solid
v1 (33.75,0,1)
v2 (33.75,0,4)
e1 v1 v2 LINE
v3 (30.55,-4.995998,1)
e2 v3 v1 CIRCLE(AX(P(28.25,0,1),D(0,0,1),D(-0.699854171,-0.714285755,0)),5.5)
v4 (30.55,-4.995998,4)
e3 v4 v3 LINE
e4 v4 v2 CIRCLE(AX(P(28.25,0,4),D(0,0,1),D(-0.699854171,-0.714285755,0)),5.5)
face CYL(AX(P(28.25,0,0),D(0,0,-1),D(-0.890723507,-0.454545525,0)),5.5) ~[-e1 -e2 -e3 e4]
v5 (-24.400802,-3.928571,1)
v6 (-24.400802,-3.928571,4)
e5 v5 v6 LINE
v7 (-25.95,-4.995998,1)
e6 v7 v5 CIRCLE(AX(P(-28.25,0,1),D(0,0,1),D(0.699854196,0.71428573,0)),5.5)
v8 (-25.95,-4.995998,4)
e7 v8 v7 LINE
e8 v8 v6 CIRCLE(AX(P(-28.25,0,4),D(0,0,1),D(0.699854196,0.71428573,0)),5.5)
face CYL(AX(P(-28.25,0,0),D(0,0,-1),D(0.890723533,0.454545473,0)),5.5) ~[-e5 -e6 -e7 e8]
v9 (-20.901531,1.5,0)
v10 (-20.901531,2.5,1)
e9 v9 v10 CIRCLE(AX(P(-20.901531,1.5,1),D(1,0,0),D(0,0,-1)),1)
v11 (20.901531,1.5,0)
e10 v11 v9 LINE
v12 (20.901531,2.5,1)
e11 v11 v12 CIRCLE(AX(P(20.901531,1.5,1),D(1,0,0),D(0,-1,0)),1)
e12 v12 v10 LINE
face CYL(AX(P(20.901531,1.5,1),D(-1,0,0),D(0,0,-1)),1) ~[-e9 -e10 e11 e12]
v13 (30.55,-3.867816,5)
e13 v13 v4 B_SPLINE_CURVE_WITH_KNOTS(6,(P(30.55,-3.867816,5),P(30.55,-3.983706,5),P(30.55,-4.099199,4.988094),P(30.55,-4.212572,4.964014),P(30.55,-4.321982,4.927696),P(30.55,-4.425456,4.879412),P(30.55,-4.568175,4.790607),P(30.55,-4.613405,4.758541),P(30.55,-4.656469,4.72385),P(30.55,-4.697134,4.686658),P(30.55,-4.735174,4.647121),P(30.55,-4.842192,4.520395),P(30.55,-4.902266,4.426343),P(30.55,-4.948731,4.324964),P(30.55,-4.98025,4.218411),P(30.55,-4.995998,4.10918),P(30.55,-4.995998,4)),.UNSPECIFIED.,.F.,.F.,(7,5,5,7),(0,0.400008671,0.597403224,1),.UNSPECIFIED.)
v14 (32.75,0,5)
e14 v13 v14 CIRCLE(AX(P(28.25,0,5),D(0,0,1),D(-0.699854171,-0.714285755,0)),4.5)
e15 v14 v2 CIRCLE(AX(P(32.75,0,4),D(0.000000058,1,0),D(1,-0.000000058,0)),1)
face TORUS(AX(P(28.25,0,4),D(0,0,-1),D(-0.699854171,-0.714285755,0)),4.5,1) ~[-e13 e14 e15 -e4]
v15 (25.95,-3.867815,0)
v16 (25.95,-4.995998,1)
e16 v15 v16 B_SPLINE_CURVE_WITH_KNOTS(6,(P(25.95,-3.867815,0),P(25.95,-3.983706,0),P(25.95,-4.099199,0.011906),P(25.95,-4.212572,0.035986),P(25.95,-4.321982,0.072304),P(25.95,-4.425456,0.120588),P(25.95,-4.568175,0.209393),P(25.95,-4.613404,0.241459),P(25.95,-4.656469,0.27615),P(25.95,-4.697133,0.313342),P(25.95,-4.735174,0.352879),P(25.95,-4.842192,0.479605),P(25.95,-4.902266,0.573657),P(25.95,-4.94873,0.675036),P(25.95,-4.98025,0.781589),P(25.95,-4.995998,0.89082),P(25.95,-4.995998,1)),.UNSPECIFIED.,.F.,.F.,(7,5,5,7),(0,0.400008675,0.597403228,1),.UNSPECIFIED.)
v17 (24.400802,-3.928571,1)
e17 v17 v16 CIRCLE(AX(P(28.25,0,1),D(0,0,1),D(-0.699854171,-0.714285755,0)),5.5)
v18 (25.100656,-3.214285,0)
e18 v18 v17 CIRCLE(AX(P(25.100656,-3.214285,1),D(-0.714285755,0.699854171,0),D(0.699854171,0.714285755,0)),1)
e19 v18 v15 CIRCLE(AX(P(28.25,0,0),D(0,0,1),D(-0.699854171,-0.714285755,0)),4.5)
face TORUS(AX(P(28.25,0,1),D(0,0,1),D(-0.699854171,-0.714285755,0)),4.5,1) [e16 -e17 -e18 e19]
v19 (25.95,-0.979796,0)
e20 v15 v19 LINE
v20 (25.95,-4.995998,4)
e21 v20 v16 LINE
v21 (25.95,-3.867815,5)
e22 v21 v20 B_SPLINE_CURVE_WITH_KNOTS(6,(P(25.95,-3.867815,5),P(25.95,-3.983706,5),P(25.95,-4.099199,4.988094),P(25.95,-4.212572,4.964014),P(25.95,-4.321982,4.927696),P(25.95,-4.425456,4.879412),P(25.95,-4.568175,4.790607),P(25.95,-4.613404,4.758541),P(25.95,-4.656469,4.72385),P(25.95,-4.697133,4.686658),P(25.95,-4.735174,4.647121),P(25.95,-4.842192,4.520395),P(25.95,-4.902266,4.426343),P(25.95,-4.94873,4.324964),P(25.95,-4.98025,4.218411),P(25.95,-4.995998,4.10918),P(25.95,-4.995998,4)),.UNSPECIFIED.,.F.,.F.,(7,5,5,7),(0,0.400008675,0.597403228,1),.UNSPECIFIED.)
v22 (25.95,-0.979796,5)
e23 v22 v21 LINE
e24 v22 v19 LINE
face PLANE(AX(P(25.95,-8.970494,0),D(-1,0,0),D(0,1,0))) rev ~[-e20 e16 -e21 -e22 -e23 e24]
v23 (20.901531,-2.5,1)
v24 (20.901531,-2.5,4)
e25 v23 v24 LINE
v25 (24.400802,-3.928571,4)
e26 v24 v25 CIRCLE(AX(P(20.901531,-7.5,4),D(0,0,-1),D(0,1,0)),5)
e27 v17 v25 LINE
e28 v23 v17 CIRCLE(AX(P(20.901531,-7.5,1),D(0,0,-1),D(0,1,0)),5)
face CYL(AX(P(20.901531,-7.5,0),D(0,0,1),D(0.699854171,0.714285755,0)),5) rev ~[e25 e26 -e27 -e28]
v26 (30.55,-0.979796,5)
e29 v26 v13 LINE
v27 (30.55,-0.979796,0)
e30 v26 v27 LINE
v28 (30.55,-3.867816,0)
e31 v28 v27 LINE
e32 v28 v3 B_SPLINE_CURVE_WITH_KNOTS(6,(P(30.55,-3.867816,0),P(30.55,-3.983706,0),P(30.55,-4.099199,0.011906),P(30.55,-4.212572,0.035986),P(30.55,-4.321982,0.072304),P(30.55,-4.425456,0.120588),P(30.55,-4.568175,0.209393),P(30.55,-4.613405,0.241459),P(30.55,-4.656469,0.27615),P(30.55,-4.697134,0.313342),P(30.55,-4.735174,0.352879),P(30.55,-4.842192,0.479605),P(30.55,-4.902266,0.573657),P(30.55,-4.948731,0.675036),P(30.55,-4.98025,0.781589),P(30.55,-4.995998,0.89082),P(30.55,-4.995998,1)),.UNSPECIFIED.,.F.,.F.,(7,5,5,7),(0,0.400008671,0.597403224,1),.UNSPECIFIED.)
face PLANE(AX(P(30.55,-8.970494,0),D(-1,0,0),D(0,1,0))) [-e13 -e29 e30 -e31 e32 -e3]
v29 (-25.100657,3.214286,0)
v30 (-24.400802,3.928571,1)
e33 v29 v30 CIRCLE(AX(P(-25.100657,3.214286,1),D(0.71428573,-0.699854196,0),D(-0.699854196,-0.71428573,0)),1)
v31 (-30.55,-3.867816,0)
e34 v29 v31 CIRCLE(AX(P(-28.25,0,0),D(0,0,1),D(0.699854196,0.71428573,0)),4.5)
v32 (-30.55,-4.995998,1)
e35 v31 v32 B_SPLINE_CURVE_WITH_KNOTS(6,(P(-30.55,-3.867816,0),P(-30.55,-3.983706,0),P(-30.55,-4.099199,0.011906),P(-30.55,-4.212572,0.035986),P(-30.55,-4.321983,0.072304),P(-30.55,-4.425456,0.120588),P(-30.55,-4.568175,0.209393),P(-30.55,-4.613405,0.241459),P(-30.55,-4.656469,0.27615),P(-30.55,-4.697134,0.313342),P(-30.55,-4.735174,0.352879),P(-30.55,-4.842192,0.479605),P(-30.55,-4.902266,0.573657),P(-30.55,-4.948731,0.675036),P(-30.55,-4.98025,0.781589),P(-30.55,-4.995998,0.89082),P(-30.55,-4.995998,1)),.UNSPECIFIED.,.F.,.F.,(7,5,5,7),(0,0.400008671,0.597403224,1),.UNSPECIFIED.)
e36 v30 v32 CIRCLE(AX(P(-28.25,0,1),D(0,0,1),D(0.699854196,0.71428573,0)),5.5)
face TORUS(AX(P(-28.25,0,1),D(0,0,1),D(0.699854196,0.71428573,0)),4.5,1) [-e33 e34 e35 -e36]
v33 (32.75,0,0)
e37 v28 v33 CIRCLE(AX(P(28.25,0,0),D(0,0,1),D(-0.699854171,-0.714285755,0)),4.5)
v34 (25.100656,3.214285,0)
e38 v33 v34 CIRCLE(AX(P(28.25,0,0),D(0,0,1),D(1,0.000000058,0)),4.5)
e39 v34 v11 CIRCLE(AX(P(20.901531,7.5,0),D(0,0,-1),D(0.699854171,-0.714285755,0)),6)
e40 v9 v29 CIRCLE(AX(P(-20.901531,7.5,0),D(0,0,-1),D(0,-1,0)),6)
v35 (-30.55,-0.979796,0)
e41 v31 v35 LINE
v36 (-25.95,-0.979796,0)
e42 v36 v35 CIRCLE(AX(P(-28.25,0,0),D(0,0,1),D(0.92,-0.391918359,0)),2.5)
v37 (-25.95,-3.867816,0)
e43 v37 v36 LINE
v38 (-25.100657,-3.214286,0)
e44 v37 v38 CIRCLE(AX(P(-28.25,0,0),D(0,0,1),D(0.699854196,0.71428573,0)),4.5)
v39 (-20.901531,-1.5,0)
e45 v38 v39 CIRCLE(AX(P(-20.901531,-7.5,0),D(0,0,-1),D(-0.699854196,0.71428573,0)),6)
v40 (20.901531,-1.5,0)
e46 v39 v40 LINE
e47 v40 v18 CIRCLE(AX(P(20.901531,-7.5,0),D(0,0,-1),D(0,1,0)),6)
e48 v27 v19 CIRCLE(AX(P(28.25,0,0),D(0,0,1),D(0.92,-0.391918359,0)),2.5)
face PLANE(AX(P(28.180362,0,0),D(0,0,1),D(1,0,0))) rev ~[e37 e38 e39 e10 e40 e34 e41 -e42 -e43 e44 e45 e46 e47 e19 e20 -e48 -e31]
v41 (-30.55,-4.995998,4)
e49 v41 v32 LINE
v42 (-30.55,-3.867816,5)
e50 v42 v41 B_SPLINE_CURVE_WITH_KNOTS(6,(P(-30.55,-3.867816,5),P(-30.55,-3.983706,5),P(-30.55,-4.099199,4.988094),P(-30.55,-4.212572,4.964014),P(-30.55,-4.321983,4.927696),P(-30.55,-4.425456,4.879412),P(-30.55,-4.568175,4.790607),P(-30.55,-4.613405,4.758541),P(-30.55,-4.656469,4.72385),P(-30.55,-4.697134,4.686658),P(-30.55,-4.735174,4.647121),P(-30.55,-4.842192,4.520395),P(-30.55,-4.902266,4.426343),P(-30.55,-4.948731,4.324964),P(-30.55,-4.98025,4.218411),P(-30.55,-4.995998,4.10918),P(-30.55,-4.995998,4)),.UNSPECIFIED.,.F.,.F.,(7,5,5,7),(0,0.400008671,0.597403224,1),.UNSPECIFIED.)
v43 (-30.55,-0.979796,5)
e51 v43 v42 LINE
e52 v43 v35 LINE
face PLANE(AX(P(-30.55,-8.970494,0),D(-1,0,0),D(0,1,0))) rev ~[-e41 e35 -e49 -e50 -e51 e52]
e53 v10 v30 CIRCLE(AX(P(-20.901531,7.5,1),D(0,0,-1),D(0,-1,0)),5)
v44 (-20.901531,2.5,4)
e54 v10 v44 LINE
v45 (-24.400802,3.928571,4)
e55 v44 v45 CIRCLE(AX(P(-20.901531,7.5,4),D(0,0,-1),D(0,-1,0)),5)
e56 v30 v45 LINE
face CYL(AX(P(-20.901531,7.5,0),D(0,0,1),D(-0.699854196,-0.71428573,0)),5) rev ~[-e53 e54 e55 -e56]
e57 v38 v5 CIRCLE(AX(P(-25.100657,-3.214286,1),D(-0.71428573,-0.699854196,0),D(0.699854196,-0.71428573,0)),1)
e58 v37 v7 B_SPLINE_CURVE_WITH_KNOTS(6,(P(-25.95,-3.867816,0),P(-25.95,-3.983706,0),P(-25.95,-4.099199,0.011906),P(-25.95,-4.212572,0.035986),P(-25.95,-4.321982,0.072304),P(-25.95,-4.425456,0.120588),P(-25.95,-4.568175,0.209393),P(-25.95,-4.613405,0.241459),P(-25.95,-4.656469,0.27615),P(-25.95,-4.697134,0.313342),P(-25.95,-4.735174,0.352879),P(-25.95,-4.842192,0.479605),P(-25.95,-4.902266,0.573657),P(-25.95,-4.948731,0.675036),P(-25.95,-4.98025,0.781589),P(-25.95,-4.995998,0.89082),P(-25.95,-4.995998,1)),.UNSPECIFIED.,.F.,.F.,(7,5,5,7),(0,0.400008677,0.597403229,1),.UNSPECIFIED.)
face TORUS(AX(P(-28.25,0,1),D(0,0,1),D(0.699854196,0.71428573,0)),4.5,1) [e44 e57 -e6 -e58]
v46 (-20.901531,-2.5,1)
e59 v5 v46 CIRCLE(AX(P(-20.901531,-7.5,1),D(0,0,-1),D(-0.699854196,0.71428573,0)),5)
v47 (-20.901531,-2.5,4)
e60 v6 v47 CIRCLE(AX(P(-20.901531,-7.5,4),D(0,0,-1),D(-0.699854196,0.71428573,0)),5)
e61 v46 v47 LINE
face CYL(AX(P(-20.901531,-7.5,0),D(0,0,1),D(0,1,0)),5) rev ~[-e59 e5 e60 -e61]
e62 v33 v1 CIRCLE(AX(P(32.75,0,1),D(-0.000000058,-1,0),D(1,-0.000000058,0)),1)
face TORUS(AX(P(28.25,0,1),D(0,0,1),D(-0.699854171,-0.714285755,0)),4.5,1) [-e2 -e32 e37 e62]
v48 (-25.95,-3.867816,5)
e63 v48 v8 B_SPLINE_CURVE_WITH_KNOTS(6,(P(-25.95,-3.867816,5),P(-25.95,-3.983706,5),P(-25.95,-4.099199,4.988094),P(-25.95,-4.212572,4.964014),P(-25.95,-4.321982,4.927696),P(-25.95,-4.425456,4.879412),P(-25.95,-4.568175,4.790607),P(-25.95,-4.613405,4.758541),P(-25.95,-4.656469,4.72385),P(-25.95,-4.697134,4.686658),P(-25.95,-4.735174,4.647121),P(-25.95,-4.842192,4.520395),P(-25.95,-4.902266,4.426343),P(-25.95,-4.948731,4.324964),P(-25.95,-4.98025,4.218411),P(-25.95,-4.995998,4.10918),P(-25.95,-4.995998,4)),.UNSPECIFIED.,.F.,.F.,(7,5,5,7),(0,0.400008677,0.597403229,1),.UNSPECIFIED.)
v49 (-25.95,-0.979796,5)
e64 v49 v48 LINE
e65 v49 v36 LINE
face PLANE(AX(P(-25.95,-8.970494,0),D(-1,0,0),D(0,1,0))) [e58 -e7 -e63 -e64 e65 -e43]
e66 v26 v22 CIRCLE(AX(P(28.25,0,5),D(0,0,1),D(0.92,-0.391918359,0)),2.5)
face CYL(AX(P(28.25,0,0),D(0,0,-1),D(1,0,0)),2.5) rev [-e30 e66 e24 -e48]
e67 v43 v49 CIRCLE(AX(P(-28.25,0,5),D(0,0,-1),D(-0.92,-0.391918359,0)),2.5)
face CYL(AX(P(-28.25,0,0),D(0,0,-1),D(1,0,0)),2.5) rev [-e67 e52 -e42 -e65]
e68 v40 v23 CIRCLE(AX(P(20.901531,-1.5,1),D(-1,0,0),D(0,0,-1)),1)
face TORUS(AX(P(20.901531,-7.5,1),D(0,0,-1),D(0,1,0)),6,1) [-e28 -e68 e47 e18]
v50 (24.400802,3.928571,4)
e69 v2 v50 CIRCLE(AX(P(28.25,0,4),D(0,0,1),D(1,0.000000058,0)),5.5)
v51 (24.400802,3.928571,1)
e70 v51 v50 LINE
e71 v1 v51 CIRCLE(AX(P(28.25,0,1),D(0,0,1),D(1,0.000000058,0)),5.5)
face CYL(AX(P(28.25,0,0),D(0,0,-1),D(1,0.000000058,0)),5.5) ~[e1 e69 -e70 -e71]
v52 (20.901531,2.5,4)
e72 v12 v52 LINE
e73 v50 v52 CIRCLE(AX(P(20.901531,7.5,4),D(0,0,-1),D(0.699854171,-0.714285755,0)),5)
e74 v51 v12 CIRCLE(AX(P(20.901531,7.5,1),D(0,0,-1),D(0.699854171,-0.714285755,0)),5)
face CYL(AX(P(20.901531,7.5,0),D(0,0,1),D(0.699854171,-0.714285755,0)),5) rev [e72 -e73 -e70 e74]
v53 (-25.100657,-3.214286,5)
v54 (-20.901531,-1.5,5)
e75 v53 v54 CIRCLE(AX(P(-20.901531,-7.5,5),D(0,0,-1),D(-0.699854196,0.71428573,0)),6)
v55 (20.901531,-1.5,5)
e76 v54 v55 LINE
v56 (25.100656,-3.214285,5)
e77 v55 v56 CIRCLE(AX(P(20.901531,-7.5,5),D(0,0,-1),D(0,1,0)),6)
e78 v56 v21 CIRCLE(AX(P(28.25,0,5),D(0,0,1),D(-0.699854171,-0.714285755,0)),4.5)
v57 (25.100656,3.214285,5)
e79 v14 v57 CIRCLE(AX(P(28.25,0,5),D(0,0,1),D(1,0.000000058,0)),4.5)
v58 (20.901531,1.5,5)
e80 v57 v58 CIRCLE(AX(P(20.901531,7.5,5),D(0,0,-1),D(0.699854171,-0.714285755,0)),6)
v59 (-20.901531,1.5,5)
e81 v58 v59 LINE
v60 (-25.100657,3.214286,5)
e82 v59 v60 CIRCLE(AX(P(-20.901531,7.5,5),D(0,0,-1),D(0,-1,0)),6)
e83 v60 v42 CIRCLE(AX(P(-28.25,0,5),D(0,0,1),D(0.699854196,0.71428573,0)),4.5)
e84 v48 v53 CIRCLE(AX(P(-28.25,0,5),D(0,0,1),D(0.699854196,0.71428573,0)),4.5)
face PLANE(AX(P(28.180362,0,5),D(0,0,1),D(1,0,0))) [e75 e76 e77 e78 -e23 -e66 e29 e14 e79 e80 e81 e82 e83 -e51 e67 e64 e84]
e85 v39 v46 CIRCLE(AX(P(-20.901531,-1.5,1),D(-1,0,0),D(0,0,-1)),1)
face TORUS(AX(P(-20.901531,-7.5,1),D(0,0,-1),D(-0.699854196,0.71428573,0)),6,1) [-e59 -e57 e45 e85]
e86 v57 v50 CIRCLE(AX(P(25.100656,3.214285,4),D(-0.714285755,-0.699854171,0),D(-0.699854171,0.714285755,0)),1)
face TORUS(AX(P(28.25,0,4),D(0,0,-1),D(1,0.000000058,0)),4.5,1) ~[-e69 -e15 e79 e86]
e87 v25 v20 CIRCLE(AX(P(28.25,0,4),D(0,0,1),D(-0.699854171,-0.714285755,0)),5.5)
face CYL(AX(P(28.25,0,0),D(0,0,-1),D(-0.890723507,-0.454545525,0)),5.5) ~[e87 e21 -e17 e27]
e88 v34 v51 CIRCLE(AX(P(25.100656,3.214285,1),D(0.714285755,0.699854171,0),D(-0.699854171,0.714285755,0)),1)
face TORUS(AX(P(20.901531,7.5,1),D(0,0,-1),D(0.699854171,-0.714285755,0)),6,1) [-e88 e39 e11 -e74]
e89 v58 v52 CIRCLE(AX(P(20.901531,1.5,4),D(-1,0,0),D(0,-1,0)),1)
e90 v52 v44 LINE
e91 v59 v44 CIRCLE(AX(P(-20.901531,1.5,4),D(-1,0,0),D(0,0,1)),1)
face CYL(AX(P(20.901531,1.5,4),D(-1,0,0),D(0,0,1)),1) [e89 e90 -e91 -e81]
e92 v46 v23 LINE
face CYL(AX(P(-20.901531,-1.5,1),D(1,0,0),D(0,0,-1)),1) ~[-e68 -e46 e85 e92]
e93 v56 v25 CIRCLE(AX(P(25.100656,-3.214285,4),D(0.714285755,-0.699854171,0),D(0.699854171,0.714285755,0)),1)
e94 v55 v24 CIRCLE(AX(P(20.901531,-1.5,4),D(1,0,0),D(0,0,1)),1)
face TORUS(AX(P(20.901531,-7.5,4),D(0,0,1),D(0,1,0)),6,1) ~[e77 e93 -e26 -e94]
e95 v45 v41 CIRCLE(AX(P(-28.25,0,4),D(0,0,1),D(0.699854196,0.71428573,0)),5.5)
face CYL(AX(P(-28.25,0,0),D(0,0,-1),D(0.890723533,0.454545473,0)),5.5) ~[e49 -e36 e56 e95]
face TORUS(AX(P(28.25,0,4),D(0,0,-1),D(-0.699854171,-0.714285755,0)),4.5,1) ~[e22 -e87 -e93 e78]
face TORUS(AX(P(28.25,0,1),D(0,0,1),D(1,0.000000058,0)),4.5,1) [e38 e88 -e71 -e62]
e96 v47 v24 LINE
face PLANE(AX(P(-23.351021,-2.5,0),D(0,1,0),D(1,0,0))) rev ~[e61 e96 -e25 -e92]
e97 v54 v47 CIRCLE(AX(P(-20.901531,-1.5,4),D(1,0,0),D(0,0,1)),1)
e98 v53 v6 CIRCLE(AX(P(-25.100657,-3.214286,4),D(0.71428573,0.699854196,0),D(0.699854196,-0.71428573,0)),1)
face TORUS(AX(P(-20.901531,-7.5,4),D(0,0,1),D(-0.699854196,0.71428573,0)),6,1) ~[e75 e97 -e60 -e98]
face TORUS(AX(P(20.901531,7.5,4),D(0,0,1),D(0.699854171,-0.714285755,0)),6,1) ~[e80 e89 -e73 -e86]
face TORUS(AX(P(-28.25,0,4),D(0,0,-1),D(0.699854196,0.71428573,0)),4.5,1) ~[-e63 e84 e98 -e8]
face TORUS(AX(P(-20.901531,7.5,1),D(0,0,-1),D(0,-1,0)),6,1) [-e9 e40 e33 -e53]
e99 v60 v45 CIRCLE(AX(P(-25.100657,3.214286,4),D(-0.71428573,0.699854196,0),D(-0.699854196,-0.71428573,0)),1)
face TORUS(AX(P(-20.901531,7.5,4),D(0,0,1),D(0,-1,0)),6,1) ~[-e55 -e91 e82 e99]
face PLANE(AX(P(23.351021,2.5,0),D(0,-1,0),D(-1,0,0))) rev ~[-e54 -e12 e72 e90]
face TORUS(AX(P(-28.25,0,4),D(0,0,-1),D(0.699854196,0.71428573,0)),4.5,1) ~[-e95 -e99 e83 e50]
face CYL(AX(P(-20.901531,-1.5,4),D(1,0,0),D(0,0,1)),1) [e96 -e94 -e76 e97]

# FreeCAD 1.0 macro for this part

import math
import FreeCAD as App
import Part
import Sketcher
from FreeCAD import Vector


def edges_at(feature, points):
    """Names of the edges that pass closest to the given points."""
    edges = feature.Shape.Edges
    near = lambda p: min(range(len(edges)), key=lambda i: edges[i].distToShape(Part.Vertex(*p))[0])
    return sorted({f"Edge{near(p) + 1}" for p in points})


def add_polygon(sketch, points):
    """Adds a closed chain of lines whose ends are joined by coincident constraints."""
    first, n = sketch.GeometryCount, len(points)
    for a, b in zip(points, points[1:] + points[:1]):
        sketch.addGeometry(Part.LineSegment(App.Vector(*a, 0), App.Vector(*b, 0)), False)
    for i in range(n):
        sketch.addConstraint(Sketcher.Constraint("Coincident", first + i, 2, first + (i + 1) % n, 1))

doc = App.newDocument("Part")
params = doc.addObject("Spreadsheet::Sheet", "Params")
for row, (alias, value) in enumerate([
    ("sketch1_diameter", "5 mm"),
    ("sketch1_radius", "5.5 mm"),
    ("pad1_length", "5 mm"),
    ("fillet_radius", "5 mm"),
    ("fillet2_radius", "1 mm"),
    ("sketch2_width", "4.6 mm"),
], start=1):
    params.set(f"A{row}", alias)
    params.set(f"B{row}", "=" + value)
    params.setAlias(f"B{row}", alias)

body = doc.addObject("PartDesign::Body", "Body")

# Sketch on XY plane
sketch1 = body.newObject("Sketcher::SketchObject", "Sketch")
sketch1.AttachmentSupport = (doc.getObject("XY_Plane"), [""])
sketch1.MapMode = "FlatFace"
sketch1.addGeometry(Part.ArcOfCircle(Part.Circle(Vector(28.3, 0, 0), Vector(0, 0, 1), 5.5), math.radians(-153), math.radians(0)), False)
sketch1.addGeometry(Part.ArcOfCircle(Part.Circle(Vector(28.3, 0, 0), Vector(0, 0, 1), 5.5), math.radians(0), math.radians(153)), False)
sketch1.addGeometry(Part.LineSegment(Vector(23.4, 2.5, 0), Vector(-23.4, 2.5, 0)), False)
sketch1.addGeometry(Part.ArcOfCircle(Part.Circle(Vector(-28.3, 0, 0), Vector(0, 0, 1), 5.5), math.radians(27), math.radians(333)), False)
sketch1.addGeometry(Part.LineSegment(Vector(-23.4, -2.5, 0), Vector(23.4, -2.5, 0)), False)
sketch1.addGeometry(Part.Circle(Vector(-28.2, 0, 0), Vector(0, 0, 1), 2.5), False)
sketch1.addGeometry(Part.Circle(Vector(28.2, 0, 0), Vector(0, 0, 1), 2.5), False)
sketch1.addConstraint(Sketcher.Constraint("Tangent", 0, 2, 1, 1))
sketch1.addConstraint(Sketcher.Constraint("Coincident", 1, 2, 2, 1))
sketch1.addConstraint(Sketcher.Constraint("Coincident", 2, 2, 3, 1))
sketch1.addConstraint(Sketcher.Constraint("Coincident", 3, 2, 4, 1))
sketch1.addConstraint(Sketcher.Constraint("Coincident", 4, 2, 0, 1))
sketch1.addConstraint(Sketcher.Constraint("Horizontal", 2))
sketch1.addConstraint(Sketcher.Constraint("Horizontal", 4))
sketch1.addConstraint(Sketcher.Constraint("Coincident", 5, 3, 3, 3))
sketch1.addConstraint(Sketcher.Constraint("Coincident", 6, 3, 0, 3))
sketch1.addConstraint(Sketcher.Constraint("Equal", 0, 1))
sketch1.addConstraint(Sketcher.Constraint("Equal", 1, 3))
sketch1.addConstraint(Sketcher.Constraint("Equal", 5, 6))
sketch1.addConstraint(Sketcher.Constraint("Symmetric", 0, 3, 3, 3, -1, 1))
sketch1.addConstraint(Sketcher.Constraint("Symmetric", 2, 2, 3, 2, -1))
sketch1.addConstraint(Sketcher.Constraint("PointOnObject", 0, 2, -1))
sketch1.addConstraint(Sketcher.Constraint("Diameter", 5, 5.0))
sketch1.addConstraint(Sketcher.Constraint("Radius", 0, 5.5))
sketch1.addConstraint(Sketcher.Constraint("DistanceX", 5, 3, 0, 2, 62.0))
sketch1.addConstraint(Sketcher.Constraint("DistanceY", 3, 2, 2, 2, 5.0))
sketch1.setExpression("Constraints[15]", "Params.sketch1_diameter")
sketch1.setExpression("Constraints[16]", "Params.sketch1_radius")
pad1 = body.newObject("PartDesign::Pad", "Pad")
pad1.Profile = sketch1
pad1.setExpression("Length", "Params.pad1_length")
doc.recompute()

fillet = body.newObject("PartDesign::Fillet", "Fillet")
fillet.Base = (pad1, edges_at(pad1, [
    (-23.351, -2.5, 2.5),
    (-23.351, 2.5, 2.5),
    (23.351, 2.5, 2.5),
    (23.351, -2.5, 2.5),
]))
fillet.setExpression("Radius", "Params.fillet_radius")
doc.recompute()

fillet2 = body.newObject("PartDesign::Fillet", "Fillet001")
fillet2.Base = (fillet, edges_at(fillet, [(0, -2.5, 5), (0, -2.5, 0)]))
fillet2.setExpression("Radius", "Params.fillet2_radius")

# Sketch on XY plane
sketch2 = body.newObject("Sketcher::SketchObject", "Sketch001")
sketch2.AttachmentSupport = (doc.getObject("XY_Plane"), [""])
sketch2.MapMode = "FlatFace"
add_polygon(sketch2, [(-30.6, 0), (-30.6, -9), (-25.9, -9), (-25.9, 0)])  # lines 0-3
add_polygon(sketch2, [(25.9, 0), (25.9, -9), (30.6, -9), (30.6, 0)])  # lines 4-7
sketch2.addConstraint(Sketcher.Constraint("Vertical", 0))
sketch2.addConstraint(Sketcher.Constraint("Horizontal", 1))
sketch2.addConstraint(Sketcher.Constraint("Vertical", 2))
sketch2.addConstraint(Sketcher.Constraint("Horizontal", 3))
sketch2.addConstraint(Sketcher.Constraint("Vertical", 4))
sketch2.addConstraint(Sketcher.Constraint("Horizontal", 5))
sketch2.addConstraint(Sketcher.Constraint("Vertical", 6))
sketch2.addConstraint(Sketcher.Constraint("Horizontal", 7))
sketch2.addConstraint(Sketcher.Constraint("Symmetric", 3, 2, 6, 2, -1, 1))
sketch2.addConstraint(Sketcher.Constraint("Symmetric", 1, 2, 4, 2, -2))
sketch2.addConstraint(Sketcher.Constraint("PointOnObject", 2, 2, -1))
sketch2.addConstraint(Sketcher.Constraint("DistanceX", 1, 1, 1, 2, 4.6))
sketch2.addConstraint(Sketcher.Constraint("DistanceX", 1, 2, 4, 2, 51.9))
sketch2.addConstraint(Sketcher.Constraint("DistanceY", 0, 2, 0, 1, 8.970495))
sketch2.setExpression("Constraints[19]", "Params.sketch2_width")
pocket1 = body.newObject("PartDesign::Pocket", "Pocket")
pocket1.Profile = sketch2
pocket1.Type = "ThroughAll"
pocket1.Reversed = True

doc.recompute()
